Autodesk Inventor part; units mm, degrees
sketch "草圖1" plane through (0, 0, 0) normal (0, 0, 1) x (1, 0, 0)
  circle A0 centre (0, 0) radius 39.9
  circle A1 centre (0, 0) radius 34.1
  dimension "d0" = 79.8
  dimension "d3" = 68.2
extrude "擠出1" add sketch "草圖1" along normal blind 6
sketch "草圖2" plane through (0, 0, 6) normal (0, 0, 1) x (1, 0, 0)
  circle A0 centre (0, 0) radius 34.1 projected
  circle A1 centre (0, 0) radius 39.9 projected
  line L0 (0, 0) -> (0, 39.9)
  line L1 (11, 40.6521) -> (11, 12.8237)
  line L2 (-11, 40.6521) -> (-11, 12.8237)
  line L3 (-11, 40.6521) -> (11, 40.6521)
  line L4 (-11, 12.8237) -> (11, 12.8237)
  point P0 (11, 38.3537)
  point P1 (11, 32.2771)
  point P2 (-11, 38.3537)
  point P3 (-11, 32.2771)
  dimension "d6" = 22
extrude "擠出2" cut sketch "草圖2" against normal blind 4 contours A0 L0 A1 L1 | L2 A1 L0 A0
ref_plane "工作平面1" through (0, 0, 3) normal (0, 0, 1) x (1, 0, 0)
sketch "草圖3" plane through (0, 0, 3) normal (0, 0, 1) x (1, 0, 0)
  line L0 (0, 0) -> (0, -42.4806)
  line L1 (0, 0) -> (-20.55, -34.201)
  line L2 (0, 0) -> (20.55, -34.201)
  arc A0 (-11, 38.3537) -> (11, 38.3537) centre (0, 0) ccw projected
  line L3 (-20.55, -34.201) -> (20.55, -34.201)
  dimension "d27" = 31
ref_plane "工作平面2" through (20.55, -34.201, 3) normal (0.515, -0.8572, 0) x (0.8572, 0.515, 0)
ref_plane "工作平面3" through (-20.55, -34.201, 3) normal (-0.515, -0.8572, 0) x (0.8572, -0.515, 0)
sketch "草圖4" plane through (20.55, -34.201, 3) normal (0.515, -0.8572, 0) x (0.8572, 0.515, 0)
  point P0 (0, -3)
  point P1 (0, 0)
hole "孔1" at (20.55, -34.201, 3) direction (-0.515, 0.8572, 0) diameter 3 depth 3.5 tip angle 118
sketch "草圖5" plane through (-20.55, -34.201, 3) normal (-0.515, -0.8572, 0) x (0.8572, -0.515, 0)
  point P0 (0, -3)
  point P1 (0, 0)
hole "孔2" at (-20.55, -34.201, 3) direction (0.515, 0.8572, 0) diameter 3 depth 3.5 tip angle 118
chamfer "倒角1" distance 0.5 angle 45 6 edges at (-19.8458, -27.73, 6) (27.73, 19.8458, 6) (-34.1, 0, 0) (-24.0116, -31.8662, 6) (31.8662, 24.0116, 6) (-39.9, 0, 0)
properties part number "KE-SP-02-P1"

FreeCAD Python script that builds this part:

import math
import FreeCAD as App
import Part
import Sketcher
from FreeCAD import Vector
Q = App.Units.Quantity


def edges_at(feature, points):
    """Names of the edges that pass closest to the given points."""
    edges = feature.Shape.Edges
    near = lambda p: min(range(len(edges)), key=lambda i: edges[i].distToShape(Part.Vertex(*p))[0])
    return sorted({f"Edge{near(p) + 1}" for p in points})

doc = App.newDocument("Part")
body = doc.addObject("PartDesign::Body", "Body")

# Sketch on XY plane
sketch1 = doc.addObject("Sketcher::SketchObject", "Sketch")
body.addObject(sketch1)
sketch1.AttachmentSupport = (doc.XY_Plane, [""])
sketch1.MapMode = "FlatFace"
sketch1.addGeometry(Part.Circle(Vector(0, 0, 0), Vector(0, 0, 1), 40), False)
sketch1.addGeometry(Part.Circle(Vector(0, 0, 0), Vector(0, 0, 1), 34), False)
sketch1.addConstraint(Sketcher.Constraint("Coincident", 0, 3, -1, 1))
sketch1.addConstraint(Sketcher.Constraint("Coincident", 1, 3, -1, 1))
sketch1.addConstraint(Sketcher.Constraint("Diameter", 0, Q("79.8 mm")))
sketch1.addConstraint(Sketcher.Constraint("Diameter", 1, Q("68.2 mm")))
pad1 = doc.addObject("PartDesign::Pad", "Pad")
body.addObject(pad1)
pad1.Profile = sketch1
pad1.Length = 6

# Sketch on XY plane
sketch2 = doc.addObject("Sketcher::SketchObject", "Sketch001")
body.addObject(sketch2)
sketch2.AttachmentSupport = (doc.XY_Plane, [""])
sketch2.MapMode = "FlatFace"
sketch2.AttachmentOffset = App.Placement(Vector(0, 0, 6), App.Rotation())
sketch2.addGeometry(Part.LineSegment(Vector(11, 32, 0), Vector(11, 38, 0)), False)
sketch2.addGeometry(Part.ArcOfCircle(Part.Circle(Vector(0, 0, 0), Vector(0, 0, 1), 40), math.radians(74), math.radians(106)), False)
sketch2.addGeometry(Part.LineSegment(Vector(-11, 38, 0), Vector(-11, 32, 0)), False)
sketch2.addGeometry(Part.ArcOfCircle(Part.Circle(Vector(0, 0, 0), Vector(0, 0, 1), 34), math.radians(71), math.radians(109)), False)
sketch2.addConstraint(Sketcher.Constraint("Coincident", 0, 2, 1, 1))
sketch2.addConstraint(Sketcher.Constraint("Coincident", 1, 2, 2, 1))
sketch2.addConstraint(Sketcher.Constraint("Coincident", 2, 2, 3, 2))
sketch2.addConstraint(Sketcher.Constraint("Coincident", 3, 1, 0, 1))
sketch2.addConstraint(Sketcher.Constraint("Vertical", 0))
sketch2.addConstraint(Sketcher.Constraint("Vertical", 2))
sketch2.addConstraint(Sketcher.Constraint("Coincident", 1, 3, -1, 1))
sketch2.addConstraint(Sketcher.Constraint("Coincident", 3, 3, -1, 1))
sketch2.addConstraint(Sketcher.Constraint("Horizontal", 0, 2, 1, 2))
sketch2.addConstraint(Sketcher.Constraint("DistanceX", 1, 2, 0, 2, Q("22 mm")))
sketch2.addConstraint(Sketcher.Constraint("Radius", 1, Q("39.9 mm")))
sketch2.addConstraint(Sketcher.Constraint("Radius", 3, Q("34.1 mm")))
pocket1 = doc.addObject("PartDesign::Pocket", "Pocket")
body.addObject(pocket1)
pocket1.Profile = sketch2
pocket1.Length = 4

# Sketch on an angled plane
sketch3 = doc.addObject("Sketcher::SketchObject", "Sketch002")
body.addObject(sketch3)
sketch3.Placement = App.Placement(Vector(20.550025, -34.200985, 0), App.Rotation(Vector(0.857167301, 0.515038075, 0), Vector(0, 0, 1.000000001), Vector(0.515038075, -0.857167301, 0), "ZXY"))
sketch3.addGeometry(Part.Circle(Vector(0, 3, 0), Vector(0, 0, 1), 1.5), False)
sketch3.addConstraint(Sketcher.Constraint("PointOnObject", 0, 3, -2))
sketch3.addConstraint(Sketcher.Constraint("Diameter", 0, Q("3 mm")))
sketch3.addConstraint(Sketcher.Constraint("DistanceY", -1, 1, 0, 3, Q("3 mm")))
doc.recompute()
hole = doc.addObject("PartDesign::Hole", "Hole")
body.addObject(hole)
hole.Profile = sketch3
hole.ThreadType = "None"
hole.Diameter = 3
hole.DepthType = "Dimension"
hole.Depth = 3.5
hole.DrillPoint = "Angled"
hole.DrillPointAngle = 118

# Sketch on an angled plane
sketch4 = doc.addObject("Sketcher::SketchObject", "Sketch003")
body.addObject(sketch4)
sketch4.Placement = App.Placement(Vector(-20.550025, -34.200985, 0), App.Rotation(Vector(0.857167301, -0.515038075, 0), Vector(0, 0, 1.000000001), Vector(-0.515038075, -0.857167301, 0), "ZXY"))
sketch4.addGeometry(Part.Circle(Vector(0, 3, 0), Vector(0, 0, 1), 1.5), False)
sketch4.addConstraint(Sketcher.Constraint("PointOnObject", 0, 3, -2))
sketch4.addConstraint(Sketcher.Constraint("Diameter", 0, Q("3 mm")))
sketch4.addConstraint(Sketcher.Constraint("DistanceY", -1, 1, 0, 3, Q("3 mm")))
doc.recompute()
hole2 = doc.addObject("PartDesign::Hole", "Hole001")
body.addObject(hole2)
hole2.Profile = sketch4
hole2.ThreadType = "None"
hole2.Diameter = 3
hole2.DepthType = "Dimension"
hole2.Depth = 3.5
hole2.DrillPoint = "Angled"
hole2.DrillPointAngle = 118
doc.recompute()

chamfer = doc.addObject("PartDesign::Chamfer", "Chamfer")
body.addObject(chamfer)
chamfer.Base = (hole2, edges_at(hole2, [
    (-19.846, -27.73, 6),
    (27.73, 19.846, 6),
    (-34.1, 0, 0),
    (-24.012, -31.866, 6),
    (31.866, 24.012, 6),
    (-39.9, 0, 0),
]))
chamfer.Size = 0.5

doc.recompute()
